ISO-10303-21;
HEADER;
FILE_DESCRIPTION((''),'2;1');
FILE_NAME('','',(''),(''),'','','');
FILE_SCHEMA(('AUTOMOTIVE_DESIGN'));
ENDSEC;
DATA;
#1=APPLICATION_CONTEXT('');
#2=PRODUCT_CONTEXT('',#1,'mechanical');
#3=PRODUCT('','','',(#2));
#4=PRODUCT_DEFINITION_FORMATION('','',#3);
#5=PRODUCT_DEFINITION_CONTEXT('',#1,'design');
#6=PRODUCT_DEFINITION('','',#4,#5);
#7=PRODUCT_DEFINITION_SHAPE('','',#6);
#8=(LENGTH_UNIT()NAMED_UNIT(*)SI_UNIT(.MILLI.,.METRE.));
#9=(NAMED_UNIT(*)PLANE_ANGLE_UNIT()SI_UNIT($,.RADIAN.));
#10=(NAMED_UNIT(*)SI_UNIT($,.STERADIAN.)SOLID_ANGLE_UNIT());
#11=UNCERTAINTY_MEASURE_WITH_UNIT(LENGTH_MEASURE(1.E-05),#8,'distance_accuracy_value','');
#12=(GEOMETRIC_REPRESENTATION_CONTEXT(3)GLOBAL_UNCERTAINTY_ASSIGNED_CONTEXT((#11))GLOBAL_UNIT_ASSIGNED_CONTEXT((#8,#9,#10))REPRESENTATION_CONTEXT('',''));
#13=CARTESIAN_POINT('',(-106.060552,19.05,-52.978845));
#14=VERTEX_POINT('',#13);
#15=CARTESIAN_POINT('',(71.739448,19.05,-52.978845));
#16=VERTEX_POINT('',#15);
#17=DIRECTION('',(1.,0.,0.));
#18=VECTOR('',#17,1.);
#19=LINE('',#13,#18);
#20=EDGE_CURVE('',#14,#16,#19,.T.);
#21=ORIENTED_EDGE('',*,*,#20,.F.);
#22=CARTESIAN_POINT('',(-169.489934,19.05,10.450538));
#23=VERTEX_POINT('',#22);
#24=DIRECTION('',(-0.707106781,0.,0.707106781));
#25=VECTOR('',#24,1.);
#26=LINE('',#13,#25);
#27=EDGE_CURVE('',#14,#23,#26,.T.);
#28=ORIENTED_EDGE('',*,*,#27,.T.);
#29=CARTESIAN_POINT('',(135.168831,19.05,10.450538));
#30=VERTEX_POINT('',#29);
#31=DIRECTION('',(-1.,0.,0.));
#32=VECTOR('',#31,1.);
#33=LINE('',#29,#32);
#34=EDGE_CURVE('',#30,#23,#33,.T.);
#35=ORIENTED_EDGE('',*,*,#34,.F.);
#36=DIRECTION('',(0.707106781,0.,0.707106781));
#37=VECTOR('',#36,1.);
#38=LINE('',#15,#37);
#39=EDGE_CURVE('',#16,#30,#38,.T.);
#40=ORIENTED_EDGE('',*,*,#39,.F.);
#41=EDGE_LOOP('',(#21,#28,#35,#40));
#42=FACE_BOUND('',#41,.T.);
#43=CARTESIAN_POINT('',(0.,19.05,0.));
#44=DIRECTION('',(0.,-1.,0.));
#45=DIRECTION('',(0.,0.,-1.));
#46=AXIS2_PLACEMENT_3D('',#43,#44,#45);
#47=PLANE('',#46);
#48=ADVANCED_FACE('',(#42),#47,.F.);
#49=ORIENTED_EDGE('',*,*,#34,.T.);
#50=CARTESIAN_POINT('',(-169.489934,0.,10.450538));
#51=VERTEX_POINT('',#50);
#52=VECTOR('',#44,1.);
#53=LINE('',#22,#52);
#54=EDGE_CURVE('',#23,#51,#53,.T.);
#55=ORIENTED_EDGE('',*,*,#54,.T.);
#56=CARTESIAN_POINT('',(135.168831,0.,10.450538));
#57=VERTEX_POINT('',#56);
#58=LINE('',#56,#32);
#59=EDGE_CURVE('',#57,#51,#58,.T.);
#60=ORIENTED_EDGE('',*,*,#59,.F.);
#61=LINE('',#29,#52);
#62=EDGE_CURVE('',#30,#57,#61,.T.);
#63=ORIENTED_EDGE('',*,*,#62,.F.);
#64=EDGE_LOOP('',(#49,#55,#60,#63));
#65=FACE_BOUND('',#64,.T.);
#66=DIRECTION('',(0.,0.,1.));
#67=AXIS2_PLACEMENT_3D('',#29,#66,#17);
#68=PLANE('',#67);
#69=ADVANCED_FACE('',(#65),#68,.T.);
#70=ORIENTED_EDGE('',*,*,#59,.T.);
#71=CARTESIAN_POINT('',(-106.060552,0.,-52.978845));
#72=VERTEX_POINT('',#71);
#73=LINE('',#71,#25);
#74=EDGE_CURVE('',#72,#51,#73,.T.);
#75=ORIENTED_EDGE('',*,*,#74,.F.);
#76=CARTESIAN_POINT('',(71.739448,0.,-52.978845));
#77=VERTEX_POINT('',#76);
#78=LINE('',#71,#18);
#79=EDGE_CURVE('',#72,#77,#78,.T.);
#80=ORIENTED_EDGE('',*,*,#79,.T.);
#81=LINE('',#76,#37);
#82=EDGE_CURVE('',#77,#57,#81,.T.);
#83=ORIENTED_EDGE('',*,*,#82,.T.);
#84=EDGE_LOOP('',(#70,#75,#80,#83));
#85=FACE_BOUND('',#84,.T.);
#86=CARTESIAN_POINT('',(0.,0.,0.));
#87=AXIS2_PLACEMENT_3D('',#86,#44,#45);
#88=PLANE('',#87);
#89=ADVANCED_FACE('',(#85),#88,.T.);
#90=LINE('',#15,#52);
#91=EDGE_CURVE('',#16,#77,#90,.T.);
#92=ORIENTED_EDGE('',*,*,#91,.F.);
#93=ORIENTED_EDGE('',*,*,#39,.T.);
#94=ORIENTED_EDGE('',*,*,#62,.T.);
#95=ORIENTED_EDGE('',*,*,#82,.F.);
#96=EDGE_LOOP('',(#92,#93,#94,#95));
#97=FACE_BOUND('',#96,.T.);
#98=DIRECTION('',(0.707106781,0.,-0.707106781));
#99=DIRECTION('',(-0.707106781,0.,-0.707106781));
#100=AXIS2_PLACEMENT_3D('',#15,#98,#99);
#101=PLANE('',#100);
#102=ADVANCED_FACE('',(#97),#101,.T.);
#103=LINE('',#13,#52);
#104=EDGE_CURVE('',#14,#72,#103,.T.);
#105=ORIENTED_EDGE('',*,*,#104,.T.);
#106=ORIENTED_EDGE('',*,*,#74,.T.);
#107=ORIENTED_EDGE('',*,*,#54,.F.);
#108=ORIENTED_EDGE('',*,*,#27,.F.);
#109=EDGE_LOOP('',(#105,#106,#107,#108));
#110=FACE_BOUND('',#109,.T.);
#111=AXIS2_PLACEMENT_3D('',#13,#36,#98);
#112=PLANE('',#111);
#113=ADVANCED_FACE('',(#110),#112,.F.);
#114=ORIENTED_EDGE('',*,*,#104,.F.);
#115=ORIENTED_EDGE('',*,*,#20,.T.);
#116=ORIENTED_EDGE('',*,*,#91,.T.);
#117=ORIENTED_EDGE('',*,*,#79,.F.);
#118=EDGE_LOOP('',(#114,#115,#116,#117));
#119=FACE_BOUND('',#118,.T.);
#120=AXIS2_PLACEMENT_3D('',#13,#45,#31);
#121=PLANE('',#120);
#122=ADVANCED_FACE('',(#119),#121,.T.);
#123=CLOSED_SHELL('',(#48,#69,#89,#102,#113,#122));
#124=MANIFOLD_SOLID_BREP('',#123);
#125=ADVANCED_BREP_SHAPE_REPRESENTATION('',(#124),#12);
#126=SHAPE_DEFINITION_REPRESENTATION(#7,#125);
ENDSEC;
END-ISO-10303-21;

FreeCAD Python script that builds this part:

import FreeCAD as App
import Part
import Sketcher
from FreeCAD import Vector
Q = App.Units.Quantity

doc = App.newDocument("Part")
body = doc.addObject("PartDesign::Body", "Body")

sketch1 = body.newObject("Sketcher::SketchObject", "Sketch")
sketch1.AttachmentSupport = (doc.getObject("XZ_Plane"), [""])
sketch1.MapMode = "FlatFace"
sketch1.addGeometry(Part.LineSegment(Vector(72, -53, 0), Vector(-106, -53, 0)), False)
sketch1.addGeometry(Part.LineSegment(Vector(-106, -53, 0), Vector(-169, 10, 0)), False)
sketch1.addGeometry(Part.LineSegment(Vector(-169, 10, 0), Vector(135, 10, 0)), False)
sketch1.addGeometry(Part.LineSegment(Vector(135, 10, 0), Vector(72, -53, 0)), False)
sketch1.addConstraint(Sketcher.Constraint("Coincident", 0, 2, 1, 1))
sketch1.addConstraint(Sketcher.Constraint("Coincident", 1, 2, 2, 1))
sketch1.addConstraint(Sketcher.Constraint("Coincident", 2, 2, 3, 1))
sketch1.addConstraint(Sketcher.Constraint("Coincident", 3, 2, 0, 1))
sketch1.addConstraint(Sketcher.Constraint("Horizontal", 0))
sketch1.addConstraint(Sketcher.Constraint("Horizontal", 2))
sketch1.addConstraint(Sketcher.Constraint("Perpendicular", 1, 3))
sketch1.addConstraint(Sketcher.Constraint("Equal", 1, 3))
sketch1.addConstraint(Sketcher.Constraint("DistanceX", 0, 2, 0, 1, Q("7 in")))
sketch1.addConstraint(Sketcher.Constraint("DistanceX", 2, 1, 2, 2, Q("304.658765 mm")))
sketch1.addConstraint(Sketcher.Constraint("DistanceX", 0, 2, -1, 1, Q("106.060552 mm")))
sketch1.addConstraint(Sketcher.Constraint("DistanceY", 0, 2, -1, 1, Q("52.978845 mm")))
pad1 = body.newObject("PartDesign::Pad", "Pad")
pad1.Profile = sketch1
pad1.Length = Q("0.75 in")
pad1.Reversed = True

doc.recompute()
